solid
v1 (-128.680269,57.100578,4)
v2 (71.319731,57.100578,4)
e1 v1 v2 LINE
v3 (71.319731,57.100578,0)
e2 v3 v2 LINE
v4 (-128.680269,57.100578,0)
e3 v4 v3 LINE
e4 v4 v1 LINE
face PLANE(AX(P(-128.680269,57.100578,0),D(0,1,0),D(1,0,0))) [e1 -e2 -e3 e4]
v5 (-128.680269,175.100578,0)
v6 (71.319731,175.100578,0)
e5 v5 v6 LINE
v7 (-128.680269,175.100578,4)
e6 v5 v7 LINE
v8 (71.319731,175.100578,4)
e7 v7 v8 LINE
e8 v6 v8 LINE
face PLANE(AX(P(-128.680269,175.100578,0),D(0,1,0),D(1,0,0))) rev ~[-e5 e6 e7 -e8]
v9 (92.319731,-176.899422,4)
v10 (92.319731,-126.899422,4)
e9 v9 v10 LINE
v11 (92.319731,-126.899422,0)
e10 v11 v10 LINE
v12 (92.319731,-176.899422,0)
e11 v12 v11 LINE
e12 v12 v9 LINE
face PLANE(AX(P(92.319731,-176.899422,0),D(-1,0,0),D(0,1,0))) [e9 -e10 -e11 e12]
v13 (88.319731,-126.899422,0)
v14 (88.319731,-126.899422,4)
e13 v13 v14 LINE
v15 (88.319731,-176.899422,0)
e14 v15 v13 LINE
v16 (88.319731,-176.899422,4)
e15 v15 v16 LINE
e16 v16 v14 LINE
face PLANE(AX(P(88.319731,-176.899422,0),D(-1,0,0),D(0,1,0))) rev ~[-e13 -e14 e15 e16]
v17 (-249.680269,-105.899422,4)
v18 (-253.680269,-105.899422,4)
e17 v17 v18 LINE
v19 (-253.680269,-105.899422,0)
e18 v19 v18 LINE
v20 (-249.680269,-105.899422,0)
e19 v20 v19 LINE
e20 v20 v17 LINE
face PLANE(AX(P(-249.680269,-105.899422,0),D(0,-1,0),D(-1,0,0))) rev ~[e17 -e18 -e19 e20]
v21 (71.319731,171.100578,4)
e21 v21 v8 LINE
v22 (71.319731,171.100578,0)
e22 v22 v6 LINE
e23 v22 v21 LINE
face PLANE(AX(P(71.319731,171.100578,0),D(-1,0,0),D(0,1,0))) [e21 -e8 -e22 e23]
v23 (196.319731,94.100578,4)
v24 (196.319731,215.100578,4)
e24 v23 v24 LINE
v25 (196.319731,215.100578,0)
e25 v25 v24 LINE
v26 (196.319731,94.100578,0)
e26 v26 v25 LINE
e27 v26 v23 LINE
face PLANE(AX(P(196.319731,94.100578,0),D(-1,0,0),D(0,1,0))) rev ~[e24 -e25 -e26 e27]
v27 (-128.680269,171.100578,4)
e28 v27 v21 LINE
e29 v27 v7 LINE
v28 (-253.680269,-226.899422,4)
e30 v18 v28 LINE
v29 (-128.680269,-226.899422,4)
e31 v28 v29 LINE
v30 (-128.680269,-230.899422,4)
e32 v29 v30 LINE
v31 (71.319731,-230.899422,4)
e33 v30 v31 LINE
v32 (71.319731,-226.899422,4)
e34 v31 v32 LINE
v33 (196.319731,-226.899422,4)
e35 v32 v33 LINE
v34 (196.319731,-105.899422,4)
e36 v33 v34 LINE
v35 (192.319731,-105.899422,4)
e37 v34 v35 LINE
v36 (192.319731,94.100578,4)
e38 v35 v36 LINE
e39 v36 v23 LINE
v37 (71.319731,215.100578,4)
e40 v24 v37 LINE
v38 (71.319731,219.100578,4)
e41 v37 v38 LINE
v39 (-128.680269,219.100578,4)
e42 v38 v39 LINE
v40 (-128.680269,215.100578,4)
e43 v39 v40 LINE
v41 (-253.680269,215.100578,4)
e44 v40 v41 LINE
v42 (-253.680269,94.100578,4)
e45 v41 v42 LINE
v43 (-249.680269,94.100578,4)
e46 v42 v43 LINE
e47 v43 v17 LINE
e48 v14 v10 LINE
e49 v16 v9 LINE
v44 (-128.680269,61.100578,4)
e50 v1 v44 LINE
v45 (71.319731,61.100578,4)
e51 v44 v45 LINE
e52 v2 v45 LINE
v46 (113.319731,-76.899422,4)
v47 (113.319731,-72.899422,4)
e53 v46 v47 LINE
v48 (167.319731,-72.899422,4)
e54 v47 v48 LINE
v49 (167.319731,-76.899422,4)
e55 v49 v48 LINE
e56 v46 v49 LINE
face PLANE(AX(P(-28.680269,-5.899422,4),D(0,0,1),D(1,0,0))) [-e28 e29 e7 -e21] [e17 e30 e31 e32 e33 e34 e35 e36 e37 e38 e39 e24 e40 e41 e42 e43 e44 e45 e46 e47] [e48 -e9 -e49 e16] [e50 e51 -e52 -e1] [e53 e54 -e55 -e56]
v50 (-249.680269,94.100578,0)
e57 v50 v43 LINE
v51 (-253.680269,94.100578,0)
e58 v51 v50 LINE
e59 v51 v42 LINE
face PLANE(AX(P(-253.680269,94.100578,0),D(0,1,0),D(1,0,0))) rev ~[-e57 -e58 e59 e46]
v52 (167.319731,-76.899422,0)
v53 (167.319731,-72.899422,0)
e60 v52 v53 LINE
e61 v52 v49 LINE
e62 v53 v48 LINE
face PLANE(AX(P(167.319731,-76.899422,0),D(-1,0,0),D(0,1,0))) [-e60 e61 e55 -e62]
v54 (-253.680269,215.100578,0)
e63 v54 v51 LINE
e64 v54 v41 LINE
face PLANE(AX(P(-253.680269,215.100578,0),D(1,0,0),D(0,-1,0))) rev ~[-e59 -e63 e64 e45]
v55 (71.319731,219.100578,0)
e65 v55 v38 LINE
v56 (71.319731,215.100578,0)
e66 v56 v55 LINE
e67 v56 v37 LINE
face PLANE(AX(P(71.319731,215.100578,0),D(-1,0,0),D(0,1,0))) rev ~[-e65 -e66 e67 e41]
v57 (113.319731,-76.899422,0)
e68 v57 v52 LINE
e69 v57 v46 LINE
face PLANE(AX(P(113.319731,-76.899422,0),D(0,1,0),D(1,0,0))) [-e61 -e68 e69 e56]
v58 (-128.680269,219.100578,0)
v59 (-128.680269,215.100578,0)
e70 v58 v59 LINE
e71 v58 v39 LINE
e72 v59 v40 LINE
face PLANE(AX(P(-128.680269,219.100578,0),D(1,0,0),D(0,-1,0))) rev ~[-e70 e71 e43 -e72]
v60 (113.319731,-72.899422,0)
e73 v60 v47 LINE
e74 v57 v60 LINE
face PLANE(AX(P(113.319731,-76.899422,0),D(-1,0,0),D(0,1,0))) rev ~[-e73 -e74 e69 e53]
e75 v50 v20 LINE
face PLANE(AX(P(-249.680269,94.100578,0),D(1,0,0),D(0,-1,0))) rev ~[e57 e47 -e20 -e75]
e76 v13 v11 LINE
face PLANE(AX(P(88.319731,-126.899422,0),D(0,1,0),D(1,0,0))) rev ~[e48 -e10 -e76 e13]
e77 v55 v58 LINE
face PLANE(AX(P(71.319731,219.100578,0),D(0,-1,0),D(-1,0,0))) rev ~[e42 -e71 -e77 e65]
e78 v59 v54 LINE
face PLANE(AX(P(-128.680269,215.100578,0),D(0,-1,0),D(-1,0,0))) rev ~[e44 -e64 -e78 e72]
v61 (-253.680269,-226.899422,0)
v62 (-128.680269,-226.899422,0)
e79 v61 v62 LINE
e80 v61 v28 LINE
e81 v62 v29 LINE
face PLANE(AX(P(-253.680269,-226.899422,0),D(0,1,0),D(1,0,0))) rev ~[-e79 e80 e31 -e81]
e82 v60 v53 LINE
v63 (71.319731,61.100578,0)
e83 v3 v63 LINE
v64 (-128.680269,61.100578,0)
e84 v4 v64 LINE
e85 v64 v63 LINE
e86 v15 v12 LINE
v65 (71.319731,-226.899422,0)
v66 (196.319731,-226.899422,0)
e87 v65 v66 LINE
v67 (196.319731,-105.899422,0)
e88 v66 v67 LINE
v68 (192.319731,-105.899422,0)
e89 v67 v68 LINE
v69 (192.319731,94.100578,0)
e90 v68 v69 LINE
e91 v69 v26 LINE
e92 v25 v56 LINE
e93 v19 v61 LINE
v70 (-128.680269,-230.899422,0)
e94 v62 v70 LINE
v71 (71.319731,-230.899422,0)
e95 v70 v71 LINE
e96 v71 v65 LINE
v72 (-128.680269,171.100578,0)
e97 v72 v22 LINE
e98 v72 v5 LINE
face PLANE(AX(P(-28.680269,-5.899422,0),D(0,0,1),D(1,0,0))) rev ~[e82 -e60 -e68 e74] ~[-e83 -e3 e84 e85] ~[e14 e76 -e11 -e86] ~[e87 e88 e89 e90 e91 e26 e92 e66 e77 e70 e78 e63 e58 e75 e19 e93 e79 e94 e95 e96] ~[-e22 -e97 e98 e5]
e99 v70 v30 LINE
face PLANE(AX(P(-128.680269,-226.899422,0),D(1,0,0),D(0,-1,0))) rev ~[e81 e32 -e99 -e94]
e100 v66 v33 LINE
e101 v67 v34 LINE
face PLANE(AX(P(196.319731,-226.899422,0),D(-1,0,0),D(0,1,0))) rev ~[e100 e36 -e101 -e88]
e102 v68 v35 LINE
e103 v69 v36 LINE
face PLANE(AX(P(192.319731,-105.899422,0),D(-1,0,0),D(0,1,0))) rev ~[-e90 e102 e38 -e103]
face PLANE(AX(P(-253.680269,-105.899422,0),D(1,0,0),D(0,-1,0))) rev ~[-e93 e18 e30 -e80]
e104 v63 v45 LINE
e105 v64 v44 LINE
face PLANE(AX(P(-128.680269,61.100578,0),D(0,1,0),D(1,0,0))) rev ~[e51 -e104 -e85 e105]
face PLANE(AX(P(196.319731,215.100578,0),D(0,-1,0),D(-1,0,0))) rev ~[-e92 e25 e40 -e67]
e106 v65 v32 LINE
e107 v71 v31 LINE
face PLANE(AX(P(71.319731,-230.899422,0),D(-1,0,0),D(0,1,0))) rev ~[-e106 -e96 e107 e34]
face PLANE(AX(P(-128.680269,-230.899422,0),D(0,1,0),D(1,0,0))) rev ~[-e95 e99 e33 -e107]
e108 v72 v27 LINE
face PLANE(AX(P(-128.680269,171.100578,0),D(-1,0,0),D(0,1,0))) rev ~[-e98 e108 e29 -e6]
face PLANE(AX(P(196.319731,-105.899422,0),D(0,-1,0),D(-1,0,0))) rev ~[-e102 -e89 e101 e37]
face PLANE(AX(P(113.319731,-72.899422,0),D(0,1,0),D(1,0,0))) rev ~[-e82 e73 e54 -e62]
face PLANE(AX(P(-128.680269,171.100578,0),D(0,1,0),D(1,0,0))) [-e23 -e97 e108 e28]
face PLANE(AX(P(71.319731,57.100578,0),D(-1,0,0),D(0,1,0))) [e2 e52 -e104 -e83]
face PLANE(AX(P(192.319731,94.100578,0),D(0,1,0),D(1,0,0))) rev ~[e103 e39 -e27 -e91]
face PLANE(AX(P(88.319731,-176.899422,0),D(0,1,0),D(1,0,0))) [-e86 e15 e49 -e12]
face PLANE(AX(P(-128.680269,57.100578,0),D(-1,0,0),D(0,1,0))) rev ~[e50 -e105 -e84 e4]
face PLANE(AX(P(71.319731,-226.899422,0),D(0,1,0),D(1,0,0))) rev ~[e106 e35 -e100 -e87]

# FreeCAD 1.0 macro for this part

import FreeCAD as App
import Part
import Sketcher
from FreeCAD import Vector
Q = App.Units.Quantity


def add_polygon(sketch, points):
    """Adds a closed chain of lines whose ends are joined by coincident constraints."""
    first, n = sketch.GeometryCount, len(points)
    for a, b in zip(points, points[1:] + points[:1]):
        sketch.addGeometry(Part.LineSegment(App.Vector(*a, 0), App.Vector(*b, 0)), False)
    for i in range(n):
        sketch.addConstraint(Sketcher.Constraint("Coincident", first + i, 2, first + (i + 1) % n, 1))

doc = App.newDocument("Part")
body = doc.addObject("PartDesign::Body", "Body")

# Sketch on XY plane
sketch1 = body.newObject("Sketcher::SketchObject", "Sketch")
sketch1.AttachmentSupport = (doc.getObject("XY_Plane"), [""])
sketch1.MapMode = "FlatFace"
add_polygon(sketch1, [(-253.7, -226.9), (-128.7, -226.9), (-128.7, -230.9), (71.3, -230.9), (71.3, -226.9), (196.3, -226.9), (196.3, -105.9), (192.3, -105.9), (192.3, 94.1), (196.3, 94.1), (196.3, 215.1), (71.3, 215.1), (71.3, 219.1), (-128.7, 219.1), (-128.7, 215.1), (-253.7, 215.1), (-253.7, 94.1), (-249.7, 94.1), (-249.7, -105.9), (-253.7, -105.9)])  # lines 0-19
add_polygon(sketch1, [(92.3, -176.9), (88.3, -176.9), (88.3, -126.9), (92.3, -126.9)])  # lines 20-23
add_polygon(sketch1, [(167.3, -76.9), (113.3, -76.9), (113.3, -72.9), (167.3, -72.9)])  # lines 24-27
add_polygon(sketch1, [(71.3, 57.1), (-128.7, 57.1), (-128.7, 61.1), (71.3, 61.1)])  # lines 28-31
add_polygon(sketch1, [(71.3, 171.1), (-128.7, 171.1), (-128.7, 175.1), (71.3, 175.1)])  # lines 32-35
sketch1.addConstraint([
    Sketcher.Constraint("Horizontal", 0),
    Sketcher.Constraint("Vertical", 1),
    Sketcher.Constraint("Horizontal", 2),
    Sketcher.Constraint("Vertical", 3),
    Sketcher.Constraint("Horizontal", 4),
    Sketcher.Constraint("Vertical", 5),
    Sketcher.Constraint("Horizontal", 6),
    Sketcher.Constraint("Vertical", 7),
    Sketcher.Constraint("Horizontal", 8),
    Sketcher.Constraint("Vertical", 9),
    Sketcher.Constraint("Horizontal", 10),
    Sketcher.Constraint("Vertical", 11),
    Sketcher.Constraint("Horizontal", 12),
    Sketcher.Constraint("Vertical", 13),
    Sketcher.Constraint("Horizontal", 14),
    Sketcher.Constraint("Vertical", 15),
    Sketcher.Constraint("Horizontal", 16),
    Sketcher.Constraint("Vertical", 17),
    Sketcher.Constraint("Horizontal", 18),
    Sketcher.Constraint("Vertical", 19),
    Sketcher.Constraint("Horizontal", 20),
    Sketcher.Constraint("Vertical", 21),
    Sketcher.Constraint("Horizontal", 22),
    Sketcher.Constraint("Vertical", 23),
    Sketcher.Constraint("Horizontal", 24),
    Sketcher.Constraint("Vertical", 25),
    Sketcher.Constraint("Horizontal", 26),
    Sketcher.Constraint("Vertical", 27),
    Sketcher.Constraint("Horizontal", 28),
    Sketcher.Constraint("Vertical", 29),
    Sketcher.Constraint("Horizontal", 30),
    Sketcher.Constraint("Vertical", 31),
    Sketcher.Constraint("Horizontal", 32),
    Sketcher.Constraint("Vertical", 33),
    Sketcher.Constraint("Horizontal", 34),
    Sketcher.Constraint("Vertical", 35),
    Sketcher.Constraint("Horizontal", 0, 2, 3, 2),
    Sketcher.Constraint("Horizontal", 10, 2, 13, 2),
    Sketcher.Constraint("Horizontal", 8, 2, 15, 2),
    Sketcher.Constraint("Horizontal", 6, 2, 17, 2),
    Sketcher.Constraint("Vertical", 5, 2, 8, 2),
    Sketcher.Constraint("Vertical", 3, 2, 10, 2),
    Sketcher.Constraint("Vertical", 1, 2, 12, 2),
    Sketcher.Constraint("Vertical", 15, 2, 18, 2),
    Sketcher.Constraint("Vertical", 13, 2, 28, 2),
    Sketcher.Constraint("Vertical", 11, 2, 30, 2),
    Sketcher.Constraint("Vertical", 29, 2, 32, 2),
    Sketcher.Constraint("Vertical", 31, 2, 34, 2),
    Sketcher.Constraint("Equal", 0, 4),
    Sketcher.Constraint("Equal", 8, 16),
    Sketcher.Constraint("Equal", 18, 20),
    Sketcher.Constraint("Equal", 22, 1),
    Sketcher.Constraint("Equal", 34, 7),
    Sketcher.Constraint("Equal", 5, 9),
    Sketcher.Constraint("Equal", 3, 11),
    Sketcher.Constraint("Equal", 13, 25),
    Sketcher.Constraint("Equal", 27, 29),
    Sketcher.Constraint("Equal", 31, 33),
    Sketcher.Constraint("DistanceX", 0, 1, 0, 2, Q("125 mm")),
    Sketcher.Constraint("DistanceX", 2, 1, 2, 2, Q("200 mm")),
    Sketcher.Constraint("DistanceX", 6, 2, 6, 1, Q("4 mm")),
    Sketcher.Constraint("DistanceX", 24, 2, 24, 1, Q("54 mm")),
    Sketcher.Constraint("DistanceY", 5, 1, 5, 2, Q("121 mm")),
    Sketcher.Constraint("DistanceY", 21, 1, 21, 2, Q("50 mm")),
    Sketcher.Constraint("DistanceX", 3, 2, 20, 2, Q("17 mm")),
    Sketcher.Constraint("DistanceY", 3, 2, 20, 2, Q("50 mm")),
    Sketcher.Constraint("DistanceX", 22, 2, 24, 2, Q("21 mm")),
    Sketcher.Constraint("DistanceY", 22, 2, 24, 2, Q("50 mm")),
    Sketcher.Constraint("DistanceY", 28, 2, 16, 2, Q("37 mm")),
    Sketcher.Constraint("DistanceY", 32, 2, 13, 2, Q("44 mm")),
    Sketcher.Constraint("DistanceX", 0, 2, -1, 1, Q("128.680269 mm")),
    Sketcher.Constraint("DistanceY", 0, 2, -1, 1, Q("226.899422 mm")),
])
pad1 = body.newObject("PartDesign::Pad", "Pad")
pad1.Profile = sketch1
pad1.Length = 4

doc.recompute()
